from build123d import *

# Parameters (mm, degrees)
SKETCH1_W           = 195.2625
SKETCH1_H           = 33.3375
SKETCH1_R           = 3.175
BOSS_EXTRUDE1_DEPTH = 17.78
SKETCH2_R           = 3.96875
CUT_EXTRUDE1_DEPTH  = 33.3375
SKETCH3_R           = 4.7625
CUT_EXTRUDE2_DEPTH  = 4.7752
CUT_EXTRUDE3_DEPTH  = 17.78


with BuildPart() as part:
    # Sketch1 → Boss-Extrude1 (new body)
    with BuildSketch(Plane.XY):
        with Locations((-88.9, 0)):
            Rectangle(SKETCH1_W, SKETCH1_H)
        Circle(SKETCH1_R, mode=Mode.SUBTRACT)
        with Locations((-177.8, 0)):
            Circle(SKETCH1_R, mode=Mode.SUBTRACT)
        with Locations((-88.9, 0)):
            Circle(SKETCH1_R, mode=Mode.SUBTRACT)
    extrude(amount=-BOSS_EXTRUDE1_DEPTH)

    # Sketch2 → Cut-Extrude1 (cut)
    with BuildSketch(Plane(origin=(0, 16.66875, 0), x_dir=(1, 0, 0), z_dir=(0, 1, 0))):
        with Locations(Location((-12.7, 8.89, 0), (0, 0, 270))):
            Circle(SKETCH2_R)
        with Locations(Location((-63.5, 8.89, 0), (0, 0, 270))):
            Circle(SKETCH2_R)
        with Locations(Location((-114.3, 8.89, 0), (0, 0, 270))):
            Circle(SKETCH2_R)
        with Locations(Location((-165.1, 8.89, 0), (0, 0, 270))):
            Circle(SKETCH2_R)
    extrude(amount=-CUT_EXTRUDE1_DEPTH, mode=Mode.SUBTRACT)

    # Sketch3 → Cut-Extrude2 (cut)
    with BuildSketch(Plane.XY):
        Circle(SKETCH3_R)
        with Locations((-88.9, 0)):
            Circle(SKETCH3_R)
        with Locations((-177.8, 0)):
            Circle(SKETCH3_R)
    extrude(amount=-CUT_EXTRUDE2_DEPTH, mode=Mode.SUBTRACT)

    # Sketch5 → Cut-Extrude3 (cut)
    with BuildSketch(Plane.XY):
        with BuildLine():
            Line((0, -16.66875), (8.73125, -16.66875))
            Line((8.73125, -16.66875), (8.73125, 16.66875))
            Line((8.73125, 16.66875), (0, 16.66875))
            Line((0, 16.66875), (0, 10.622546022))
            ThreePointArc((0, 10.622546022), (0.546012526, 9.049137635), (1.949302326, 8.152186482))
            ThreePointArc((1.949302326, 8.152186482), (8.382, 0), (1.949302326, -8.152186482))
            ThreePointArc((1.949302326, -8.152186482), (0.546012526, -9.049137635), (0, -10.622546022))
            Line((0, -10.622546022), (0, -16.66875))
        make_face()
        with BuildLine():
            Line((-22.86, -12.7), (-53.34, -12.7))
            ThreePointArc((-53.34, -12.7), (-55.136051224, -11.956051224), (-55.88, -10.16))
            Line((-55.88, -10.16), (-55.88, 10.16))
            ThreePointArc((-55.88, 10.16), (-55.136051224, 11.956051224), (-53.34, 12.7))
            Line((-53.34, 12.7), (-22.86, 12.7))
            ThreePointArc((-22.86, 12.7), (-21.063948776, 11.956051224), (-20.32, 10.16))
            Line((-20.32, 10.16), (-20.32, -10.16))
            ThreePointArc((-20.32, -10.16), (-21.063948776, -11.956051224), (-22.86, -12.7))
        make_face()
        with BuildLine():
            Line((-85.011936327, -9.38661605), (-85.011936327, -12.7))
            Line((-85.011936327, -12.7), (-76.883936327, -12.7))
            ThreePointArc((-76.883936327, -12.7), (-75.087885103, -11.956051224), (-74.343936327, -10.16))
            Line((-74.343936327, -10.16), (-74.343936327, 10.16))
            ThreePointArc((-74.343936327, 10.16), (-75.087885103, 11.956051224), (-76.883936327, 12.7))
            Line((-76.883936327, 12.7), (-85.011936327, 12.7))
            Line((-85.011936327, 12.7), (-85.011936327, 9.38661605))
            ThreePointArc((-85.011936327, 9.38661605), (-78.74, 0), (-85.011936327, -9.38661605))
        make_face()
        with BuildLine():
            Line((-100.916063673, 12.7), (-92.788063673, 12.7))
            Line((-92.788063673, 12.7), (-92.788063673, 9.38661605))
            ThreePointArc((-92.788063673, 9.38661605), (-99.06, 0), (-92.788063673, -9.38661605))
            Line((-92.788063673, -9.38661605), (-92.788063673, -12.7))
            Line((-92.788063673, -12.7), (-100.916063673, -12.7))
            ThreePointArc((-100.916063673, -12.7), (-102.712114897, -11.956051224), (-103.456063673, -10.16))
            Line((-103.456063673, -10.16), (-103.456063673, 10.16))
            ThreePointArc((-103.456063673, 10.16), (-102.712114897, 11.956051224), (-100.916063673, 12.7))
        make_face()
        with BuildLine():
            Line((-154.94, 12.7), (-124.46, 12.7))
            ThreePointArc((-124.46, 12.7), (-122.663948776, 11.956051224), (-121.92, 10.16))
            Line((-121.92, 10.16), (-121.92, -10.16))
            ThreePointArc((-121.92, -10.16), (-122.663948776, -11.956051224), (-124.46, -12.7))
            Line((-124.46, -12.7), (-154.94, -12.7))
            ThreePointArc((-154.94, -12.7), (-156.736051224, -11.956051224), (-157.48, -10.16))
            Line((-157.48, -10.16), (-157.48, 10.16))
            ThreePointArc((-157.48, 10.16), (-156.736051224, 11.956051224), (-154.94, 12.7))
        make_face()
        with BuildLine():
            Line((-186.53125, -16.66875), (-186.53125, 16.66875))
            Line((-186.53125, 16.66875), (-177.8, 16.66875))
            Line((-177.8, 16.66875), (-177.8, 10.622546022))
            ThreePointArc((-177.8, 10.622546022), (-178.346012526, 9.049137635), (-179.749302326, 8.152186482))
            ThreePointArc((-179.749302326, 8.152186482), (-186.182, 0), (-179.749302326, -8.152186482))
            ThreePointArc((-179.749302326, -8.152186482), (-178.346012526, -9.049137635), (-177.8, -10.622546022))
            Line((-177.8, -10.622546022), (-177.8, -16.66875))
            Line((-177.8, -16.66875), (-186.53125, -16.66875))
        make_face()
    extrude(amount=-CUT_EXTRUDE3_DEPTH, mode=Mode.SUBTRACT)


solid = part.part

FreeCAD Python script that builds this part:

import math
import FreeCAD as App
import Part
import Sketcher

V = App.Vector
Q = App.Units.Quantity


def add_polygon(sketch, points):
    """Adds a closed chain of lines whose ends are joined by coincident constraints."""
    first, n = sketch.GeometryCount, len(points)
    for a, b in zip(points, points[1:] + points[:1]):
        sketch.addGeometry(Part.LineSegment(App.Vector(*a, 0), App.Vector(*b, 0)), False)
    for i in range(n):
        sketch.addConstraint(Sketcher.Constraint("Coincident", first + i, 2, first + (i + 1) % n, 1))

doc = App.newDocument("Part")
body = doc.addObject("PartDesign::Body", "Body")

sketch1 = doc.addObject("Sketcher::SketchObject", "Sketch")
body.addObject(sketch1)
sketch1.AttachmentSupport = (doc.XY_Plane, [""])
sketch1.MapMode = "FlatFace"
add_polygon(sketch1, [(-186.5, 16.7), (-186.5, -16.7), (8.7, -16.7), (8.7, 16.7)])
sketch1.addGeometry(Part.Circle(V(-177.8, 0, 0), V(0, 0, 1), 3.2), False)
sketch1.addGeometry(Part.Circle(V(-88.9, 0, 0), V(0, 0, 1), 3.2), False)
sketch1.addGeometry(Part.Circle(V(0, 0, 0), V(0, 0, 1), 3.2), False)
sketch1.addConstraint(Sketcher.Constraint("Vertical", 0))
sketch1.addConstraint(Sketcher.Constraint("Horizontal", 1))
sketch1.addConstraint(Sketcher.Constraint("Vertical", 2))
sketch1.addConstraint(Sketcher.Constraint("Horizontal", 3))
sketch1.addConstraint(Sketcher.Constraint("Coincident", 6, 3, -1, 1))
sketch1.addConstraint(Sketcher.Constraint("Equal", 4, 5))
sketch1.addConstraint(Sketcher.Constraint("Equal", 5, 6))
sketch1.addConstraint(Sketcher.Constraint("PointOnObject", 4, 3, -1))
sketch1.addConstraint(Sketcher.Constraint("PointOnObject", 5, 3, -1))
sketch1.addConstraint(Sketcher.Constraint("Diameter", 4, Q("0.25 in")))
sketch1.addConstraint(Sketcher.Constraint("DistanceX", 4, 3, -1, 1, Q("7 in")))
sketch1.addConstraint(Sketcher.Constraint("DistanceX", 5, 3, -1, 1, Q("3.5 in")))
sketch1.addConstraint(Sketcher.Constraint("DistanceX", 1, 1, 1, 2, Q("7.6875 in")))
sketch1.addConstraint(Sketcher.Constraint("DistanceY", 0, 2, 0, 1, Q("1.3125 in")))
sketch1.addConstraint(Sketcher.Constraint("DistanceX", 0, 2, -1, 1, Q("7.34375 in")))
sketch1.addConstraint(Sketcher.Constraint("DistanceY", 0, 2, -1, 1, Q("0.65625 in")))
pad1 = doc.addObject("PartDesign::Pad", "Pad")
body.addObject(pad1)
pad1.Profile = sketch1
pad1.Length = Q("0.7 in")
pad1.Reversed = True

sketch2 = doc.addObject("Sketcher::SketchObject", "Sketch001")
body.addObject(sketch2)
sketch2.AttachmentSupport = (doc.XZ_Plane, [""])
sketch2.MapMode = "FlatFace"
sketch2.AttachmentOffset = App.Placement(V(0, 0, -0.65625 * 25.4), App.Rotation())
sketch2.addGeometry(Part.Circle(V(-12.7, -8.9, 0), V(0, 0, 1), 4), False)
sketch2.addGeometry(Part.Circle(V(-63.5, -8.9, 0), V(0, 0, 1), 4), False)
sketch2.addGeometry(Part.Circle(V(-114.3, -8.9, 0), V(0, 0, 1), 4), False)
sketch2.addGeometry(Part.Circle(V(-165.1, -8.9, 0), V(0, 0, 1), 4), False)
sketch2.addConstraint(Sketcher.Constraint("Equal", 0, 1))
sketch2.addConstraint(Sketcher.Constraint("Equal", 1, 2))
sketch2.addConstraint(Sketcher.Constraint("Equal", 2, 3))
sketch2.addConstraint(Sketcher.Constraint("Horizontal", 0, 3, 1, 3))
sketch2.addConstraint(Sketcher.Constraint("Horizontal", 1, 3, 2, 3))
sketch2.addConstraint(Sketcher.Constraint("Horizontal", 2, 3, 3, 3))
sketch2.addConstraint(Sketcher.Constraint("Diameter", 0, Q("0.3125 in")))
sketch2.addConstraint(Sketcher.Constraint("DistanceX", 1, 3, 0, 3, Q("2 in")))
sketch2.addConstraint(Sketcher.Constraint("DistanceX", 2, 3, 1, 3, Q("2 in")))
sketch2.addConstraint(Sketcher.Constraint("DistanceX", 3, 3, 2, 3, Q("2 in")))
sketch2.addConstraint(Sketcher.Constraint("DistanceX", 0, 3, -1, 1, Q("0.5 in")))
sketch2.addConstraint(Sketcher.Constraint("DistanceY", 0, 3, -1, 1, Q("0.35 in")))
pocket1 = doc.addObject("PartDesign::Pocket", "Pocket")
body.addObject(pocket1)
pocket1.Profile = sketch2
pocket1.Length = Q("1.3125 in")
pocket1.Reversed = True

sketch3 = doc.addObject("Sketcher::SketchObject", "Sketch002")
body.addObject(sketch3)
sketch3.AttachmentSupport = (doc.XY_Plane, [""])
sketch3.MapMode = "FlatFace"
sketch3.addGeometry(Part.Circle(V(0, 0, 0), V(0, 0, 1), 4.8), False)
sketch3.addGeometry(Part.Circle(V(-88.9, 0, 0), V(0, 0, 1), 4.8), False)
sketch3.addGeometry(Part.Circle(V(-177.8, 0, 0), V(0, 0, 1), 4.8), False)
sketch3.addConstraint(Sketcher.Constraint("Coincident", 0, 3, -1, 1))
sketch3.addConstraint(Sketcher.Constraint("Equal", 0, 1))
sketch3.addConstraint(Sketcher.Constraint("Equal", 1, 2))
sketch3.addConstraint(Sketcher.Constraint("PointOnObject", 1, 3, -1))
sketch3.addConstraint(Sketcher.Constraint("PointOnObject", 2, 3, -1))
sketch3.addConstraint(Sketcher.Constraint("Diameter", 0, Q("0.375 in")))
sketch3.addConstraint(Sketcher.Constraint("DistanceX", 2, 3, -1, 1, Q("7 in")))
sketch3.addConstraint(Sketcher.Constraint("DistanceX", 1, 3, -1, 1, Q("3.5 in")))
pocket2 = doc.addObject("PartDesign::Pocket", "Pocket001")
body.addObject(pocket2)
pocket2.Profile = sketch3
pocket2.Length = Q("0.188 in")

sketch4 = doc.addObject("Sketcher::SketchObject", "Sketch003")
body.addObject(sketch4)
sketch4.AttachmentSupport = (doc.XY_Plane, [""])
sketch4.MapMode = "FlatFace"
sketch4.addGeometry(Part.LineSegment(V(0, -16.7, 0), V(8.7, -16.7, 0)), False)
sketch4.addGeometry(Part.LineSegment(V(8.7, -16.7, 0), V(8.7, 16.7, 0)), False)
sketch4.addGeometry(Part.LineSegment(V(8.7, 16.7, 0), V(0, 16.7, 0)), False)
sketch4.addGeometry(Part.LineSegment(V(0, 16.7, 0), V(0, 10.6, 0)), False)
sketch4.addGeometry(Part.ArcOfCircle(Part.Circle(V(2.5, 10.6, 0), V(0, 0, 1), 2.5), math.radians(-180), math.radians(-103)), False)
sketch4.addGeometry(Part.ArcOfCircle(Part.Circle(V(0, 0, 0), V(0, 0, 1), 8.4), math.radians(-77), math.radians(77)), False)
sketch4.addGeometry(Part.ArcOfCircle(Part.Circle(V(2.5, -10.6, 0), V(0, 0, 1), 2.5), math.radians(103), math.radians(180)), False)
sketch4.addGeometry(Part.LineSegment(V(0, -10.6, 0), V(0, -16.7, 0)), False)
sketch4.addGeometry(Part.LineSegment(V(-53.3, -12.7, 0), V(-22.9, -12.7, 0)), False)
sketch4.addGeometry(Part.ArcOfCircle(Part.Circle(V(-22.9, -10.2, 0), V(0, 0, 1), 2.5), math.radians(-90), math.radians(0)), False)
sketch4.addGeometry(Part.LineSegment(V(-20.3, -10.2, 0), V(-20.3, 10.2, 0)), False)
sketch4.addGeometry(Part.ArcOfCircle(Part.Circle(V(-22.9, 10.2, 0), V(0, 0, 1), 2.5), math.radians(0), math.radians(90)), False)
sketch4.addGeometry(Part.LineSegment(V(-22.9, 12.7, 0), V(-53.3, 12.7, 0)), False)
sketch4.addGeometry(Part.ArcOfCircle(Part.Circle(V(-53.3, 10.2, 0), V(0, 0, 1), 2.5), math.radians(90), math.radians(180)), False)
sketch4.addGeometry(Part.LineSegment(V(-55.9, 10.2, 0), V(-55.9, -10.2, 0)), False)
sketch4.addGeometry(Part.ArcOfCircle(Part.Circle(V(-53.3, -10.2, 0), V(0, 0, 1), 2.5), math.radians(-180), math.radians(-90)), False)
sketch4.addGeometry(Part.LineSegment(V(-85, -9.4, 0), V(-85, -12.7, 0)), False)
sketch4.addGeometry(Part.LineSegment(V(-85, -12.7, 0), V(-76.9, -12.7, 0)), False)
sketch4.addGeometry(Part.ArcOfCircle(Part.Circle(V(-76.9, -10.2, 0), V(0, 0, 1), 2.5), math.radians(-90), math.radians(0)), False)
sketch4.addGeometry(Part.LineSegment(V(-74.3, -10.2, 0), V(-74.3, 10.2, 0)), False)
sketch4.addGeometry(Part.ArcOfCircle(Part.Circle(V(-76.9, 10.2, 0), V(0, 0, 1), 2.5), math.radians(0), math.radians(90)), False)
sketch4.addGeometry(Part.LineSegment(V(-76.9, 12.7, 0), V(-85, 12.7, 0)), False)
sketch4.addGeometry(Part.LineSegment(V(-85, 12.7, 0), V(-85, 9.4, 0)), False)
sketch4.addGeometry(Part.ArcOfCircle(Part.Circle(V(-88.9, 0, 0), V(0, 0, 1), 10.2), math.radians(-67), math.radians(67)), False)
sketch4.addGeometry(Part.LineSegment(V(-92.8, 12.7, 0), V(-100.9, 12.7, 0)), False)
sketch4.addGeometry(Part.ArcOfCircle(Part.Circle(V(-100.9, 10.2, 0), V(0, 0, 1), 2.5), math.radians(90), math.radians(180)), False)
sketch4.addGeometry(Part.LineSegment(V(-103.5, 10.2, 0), V(-103.5, -10.2, 0)), False)
sketch4.addGeometry(Part.ArcOfCircle(Part.Circle(V(-100.9, -10.2, 0), V(0, 0, 1), 2.5), math.radians(-180), math.radians(-90)), False)
sketch4.addGeometry(Part.LineSegment(V(-100.9, -12.7, 0), V(-92.8, -12.7, 0)), False)
sketch4.addGeometry(Part.LineSegment(V(-92.8, -12.7, 0), V(-92.8, -9.4, 0)), False)
sketch4.addGeometry(Part.ArcOfCircle(Part.Circle(V(-88.9, 0, 0), V(0, 0, 1), 10.2), math.radians(113), math.radians(247)), False)
sketch4.addGeometry(Part.LineSegment(V(-92.8, 9.4, 0), V(-92.8, 12.7, 0)), False)
sketch4.addGeometry(Part.LineSegment(V(-124.5, 12.7, 0), V(-154.9, 12.7, 0)), False)
sketch4.addGeometry(Part.ArcOfCircle(Part.Circle(V(-154.9, 10.2, 0), V(0, 0, 1), 2.5), math.radians(90), math.radians(180)), False)
sketch4.addGeometry(Part.LineSegment(V(-157.5, 10.2, 0), V(-157.5, -10.2, 0)), False)
sketch4.addGeometry(Part.ArcOfCircle(Part.Circle(V(-154.9, -10.2, 0), V(0, 0, 1), 2.5), math.radians(-180), math.radians(-90)), False)
sketch4.addGeometry(Part.LineSegment(V(-154.9, -12.7, 0), V(-124.5, -12.7, 0)), False)
sketch4.addGeometry(Part.ArcOfCircle(Part.Circle(V(-124.5, -10.2, 0), V(0, 0, 1), 2.5), math.radians(-90), math.radians(0)), False)
sketch4.addGeometry(Part.LineSegment(V(-121.9, -10.2, 0), V(-121.9, 10.2, 0)), False)
sketch4.addGeometry(Part.ArcOfCircle(Part.Circle(V(-124.5, 10.2, 0), V(0, 0, 1), 2.5), math.radians(0), math.radians(90)), False)
sketch4.addGeometry(Part.LineSegment(V(-186.5, 16.7, 0), V(-186.5, -16.7, 0)), False)
sketch4.addGeometry(Part.LineSegment(V(-186.5, -16.7, 0), V(-177.8, -16.7, 0)), False)
sketch4.addGeometry(Part.LineSegment(V(-177.8, -16.7, 0), V(-177.8, -10.6, 0)), False)
sketch4.addGeometry(Part.ArcOfCircle(Part.Circle(V(-180.3, -10.6, 0), V(0, 0, 1), 2.5), math.radians(0), math.radians(77)), False)
sketch4.addGeometry(Part.ArcOfCircle(Part.Circle(V(-177.8, 0, 0), V(0, 0, 1), 8.4), math.radians(103), math.radians(257)), False)
sketch4.addGeometry(Part.ArcOfCircle(Part.Circle(V(-180.3, 10.6, 0), V(0, 0, 1), 2.5), math.radians(-77), math.radians(0)), False)
sketch4.addGeometry(Part.LineSegment(V(-177.8, 10.6, 0), V(-177.8, 16.7, 0)), False)
sketch4.addGeometry(Part.LineSegment(V(-177.8, 16.7, 0), V(-186.5, 16.7, 0)), False)
sketch4.addConstraint(Sketcher.Constraint("Coincident", 0, 2, 1, 1))
sketch4.addConstraint(Sketcher.Constraint("Coincident", 1, 2, 2, 1))
sketch4.addConstraint(Sketcher.Constraint("Coincident", 2, 2, 3, 1))
sketch4.addConstraint(Sketcher.Constraint("Tangent", 3, 2, 4, 1))
sketch4.addConstraint(Sketcher.Constraint("Tangent", 4, 2, 5, 2))
sketch4.addConstraint(Sketcher.Constraint("Tangent", 5, 1, 6, 1))
sketch4.addConstraint(Sketcher.Constraint("Tangent", 6, 2, 7, 1))
sketch4.addConstraint(Sketcher.Constraint("Coincident", 7, 2, 0, 1))
sketch4.addConstraint(Sketcher.Constraint("Tangent", 8, 2, 9, 1))
sketch4.addConstraint(Sketcher.Constraint("Tangent", 9, 2, 10, 1))
sketch4.addConstraint(Sketcher.Constraint("Tangent", 10, 2, 11, 1))
sketch4.addConstraint(Sketcher.Constraint("Tangent", 11, 2, 12, 1))
sketch4.addConstraint(Sketcher.Constraint("Tangent", 12, 2, 13, 1))
sketch4.addConstraint(Sketcher.Constraint("Tangent", 13, 2, 14, 1))
sketch4.addConstraint(Sketcher.Constraint("Tangent", 14, 2, 15, 1))
sketch4.addConstraint(Sketcher.Constraint("Tangent", 15, 2, 8, 1))
sketch4.addConstraint(Sketcher.Constraint("Coincident", 16, 2, 17, 1))
sketch4.addConstraint(Sketcher.Constraint("Tangent", 17, 2, 18, 1))
sketch4.addConstraint(Sketcher.Constraint("Tangent", 18, 2, 19, 1))
sketch4.addConstraint(Sketcher.Constraint("Tangent", 19, 2, 20, 1))
sketch4.addConstraint(Sketcher.Constraint("Tangent", 20, 2, 21, 1))
sketch4.addConstraint(Sketcher.Constraint("Coincident", 21, 2, 22, 1))
sketch4.addConstraint(Sketcher.Constraint("Coincident", 22, 2, 23, 2))
sketch4.addConstraint(Sketcher.Constraint("Coincident", 23, 1, 16, 1))
sketch4.addConstraint(Sketcher.Constraint("Tangent", 24, 2, 25, 1))
sketch4.addConstraint(Sketcher.Constraint("Tangent", 25, 2, 26, 1))
sketch4.addConstraint(Sketcher.Constraint("Tangent", 26, 2, 27, 1))
sketch4.addConstraint(Sketcher.Constraint("Tangent", 27, 2, 28, 1))
sketch4.addConstraint(Sketcher.Constraint("Coincident", 28, 2, 29, 1))
sketch4.addConstraint(Sketcher.Constraint("Coincident", 29, 2, 30, 2))
sketch4.addConstraint(Sketcher.Constraint("Coincident", 30, 1, 31, 1))
sketch4.addConstraint(Sketcher.Constraint("Coincident", 31, 2, 24, 1))
sketch4.addConstraint(Sketcher.Constraint("Tangent", 32, 2, 33, 1))
sketch4.addConstraint(Sketcher.Constraint("Tangent", 33, 2, 34, 1))
sketch4.addConstraint(Sketcher.Constraint("Tangent", 34, 2, 35, 1))
sketch4.addConstraint(Sketcher.Constraint("Tangent", 35, 2, 36, 1))
sketch4.addConstraint(Sketcher.Constraint("Tangent", 36, 2, 37, 1))
sketch4.addConstraint(Sketcher.Constraint("Tangent", 37, 2, 38, 1))
sketch4.addConstraint(Sketcher.Constraint("Tangent", 38, 2, 39, 1))
sketch4.addConstraint(Sketcher.Constraint("Tangent", 39, 2, 32, 1))
sketch4.addConstraint(Sketcher.Constraint("Coincident", 40, 2, 41, 1))
sketch4.addConstraint(Sketcher.Constraint("Coincident", 41, 2, 42, 1))
sketch4.addConstraint(Sketcher.Constraint("Tangent", 42, 2, 43, 1))
sketch4.addConstraint(Sketcher.Constraint("Tangent", 43, 2, 44, 2))
sketch4.addConstraint(Sketcher.Constraint("Tangent", 44, 1, 45, 1))
sketch4.addConstraint(Sketcher.Constraint("Tangent", 45, 2, 46, 1))
sketch4.addConstraint(Sketcher.Constraint("Coincident", 46, 2, 47, 1))
sketch4.addConstraint(Sketcher.Constraint("Coincident", 47, 2, 40, 1))
sketch4.addConstraint(Sketcher.Constraint("Horizontal", 0))
sketch4.addConstraint(Sketcher.Constraint("Vertical", 1))
sketch4.addConstraint(Sketcher.Constraint("Horizontal", 2))
sketch4.addConstraint(Sketcher.Constraint("Vertical", 3))
sketch4.addConstraint(Sketcher.Constraint("Vertical", 7))
sketch4.addConstraint(Sketcher.Constraint("Horizontal", 8))
sketch4.addConstraint(Sketcher.Constraint("Vertical", 10))
sketch4.addConstraint(Sketcher.Constraint("Horizontal", 12))
sketch4.addConstraint(Sketcher.Constraint("Vertical", 14))
sketch4.addConstraint(Sketcher.Constraint("Vertical", 16))
sketch4.addConstraint(Sketcher.Constraint("Horizontal", 17))
sketch4.addConstraint(Sketcher.Constraint("Vertical", 19))
sketch4.addConstraint(Sketcher.Constraint("Horizontal", 21))
sketch4.addConstraint(Sketcher.Constraint("Vertical", 22))
sketch4.addConstraint(Sketcher.Constraint("Horizontal", 24))
sketch4.addConstraint(Sketcher.Constraint("Vertical", 26))
sketch4.addConstraint(Sketcher.Constraint("Horizontal", 28))
sketch4.addConstraint(Sketcher.Constraint("Vertical", 29))
sketch4.addConstraint(Sketcher.Constraint("Vertical", 31))
sketch4.addConstraint(Sketcher.Constraint("Horizontal", 32))
sketch4.addConstraint(Sketcher.Constraint("Vertical", 34))
sketch4.addConstraint(Sketcher.Constraint("Horizontal", 36))
sketch4.addConstraint(Sketcher.Constraint("Vertical", 38))
sketch4.addConstraint(Sketcher.Constraint("Vertical", 40))
sketch4.addConstraint(Sketcher.Constraint("Horizontal", 41))
sketch4.addConstraint(Sketcher.Constraint("Vertical", 42))
sketch4.addConstraint(Sketcher.Constraint("Vertical", 46))
sketch4.addConstraint(Sketcher.Constraint("Horizontal", 47))
sketch4.addConstraint(Sketcher.Constraint("Coincident", 5, 3, -1, 1))
sketch4.addConstraint(Sketcher.Constraint("Coincident", 30, 3, 23, 3))
sketch4.addConstraint(Sketcher.Constraint("Equal", 4, 6))
sketch4.addConstraint(Sketcher.Constraint("Equal", 6, 9))
sketch4.addConstraint(Sketcher.Constraint("Equal", 9, 11))
sketch4.addConstraint(Sketcher.Constraint("Equal", 11, 13))
sketch4.addConstraint(Sketcher.Constraint("Equal", 13, 15))
sketch4.addConstraint(Sketcher.Constraint("Equal", 15, 18))
sketch4.addConstraint(Sketcher.Constraint("Equal", 18, 20))
sketch4.addConstraint(Sketcher.Constraint("Equal", 20, 25))
sketch4.addConstraint(Sketcher.Constraint("Equal", 25, 27))
sketch4.addConstraint(Sketcher.Constraint("Equal", 23, 30))
sketch4.addConstraint(Sketcher.Constraint("Equal", 27, 33))
sketch4.addConstraint(Sketcher.Constraint("Equal", 33, 35))
sketch4.addConstraint(Sketcher.Constraint("Equal", 35, 37))
sketch4.addConstraint(Sketcher.Constraint("Equal", 37, 39))
sketch4.addConstraint(Sketcher.Constraint("Equal", 39, 43))
sketch4.addConstraint(Sketcher.Constraint("Equal", 5, 44))
sketch4.addConstraint(Sketcher.Constraint("Equal", 43, 45))
sketch4.addConstraint(Sketcher.Constraint("Symmetric", 3, 2, 6, 2, -1, 1))
sketch4.addConstraint(Sketcher.Constraint("Symmetric", 43, 3, 45, 3, -1))
sketch4.addConstraint(Sketcher.Constraint("Symmetric", 16, 2, 21, 2, -1))
sketch4.addConstraint(Sketcher.Constraint("Symmetric", 29, 2, 30, 1, -1))
sketch4.addConstraint(Sketcher.Constraint("Horizontal", 15, 3, 18, 3))
sketch4.addConstraint(Sketcher.Constraint("Horizontal", 13, 3, 20, 3))
sketch4.addConstraint(Sketcher.Constraint("Horizontal", 20, 3, 25, 3))
sketch4.addConstraint(Sketcher.Constraint("Horizontal", 18, 3, 27, 3))
sketch4.addConstraint(Sketcher.Constraint("Horizontal", 25, 3, 33, 3))
sketch4.addConstraint(Sketcher.Constraint("Horizontal", 27, 3, 35, 3))
sketch4.addConstraint(Sketcher.Constraint("Horizontal", 6, 3, 43, 3))
sketch4.addConstraint(Sketcher.Constraint("Horizontal", 23, 1, 29, 2))
sketch4.addConstraint(Sketcher.Constraint("Horizontal", 7, 2, 40, 2))
sketch4.addConstraint(Sketcher.Constraint("Horizontal", 2, 2, 46, 2))
sketch4.addConstraint(Sketcher.Constraint("Equal", 21, 24))
sketch4.addConstraint(Sketcher.Constraint("Equal", 12, 32))
sketch4.addConstraint(Sketcher.Constraint("Equal", 2, 41))
sketch4.addConstraint(Sketcher.Constraint("Equal", 3, 7))
sketch4.addConstraint(Sketcher.Constraint("Radius", 4, Q("0.1 in")))
sketch4.addConstraint(Sketcher.Constraint("Radius", 23, Q("0.4 in")))
sketch4.addConstraint(Sketcher.Constraint("Radius", 5, Q("0.33 in")))
sketch4.addConstraint(Sketcher.Constraint("DistanceX", 8, 1, 8, 2, Q("1.2 in")))
sketch4.addConstraint(Sketcher.Constraint("DistanceY", 10, 1, 10, 2, Q("0.8 in")))
sketch4.addConstraint(Sketcher.Constraint("DistanceX", 44, 3, -1, 1, Q("7 in")))
sketch4.addConstraint(Sketcher.Constraint("DistanceX", 17, 1, 17, 2, Q("0.32 in")))
sketch4.addConstraint(Sketcher.Constraint("DistanceX", 9, 3, -1, 1, Q("0.9 in")))
sketch4.addConstraint(Sketcher.Constraint("DistanceX", 23, 3, -1, 1, Q("3.5 in")))
sketch4.addConstraint(Sketcher.Constraint("DistanceX", 33, 3, -1, 1, Q("6.1 in")))
sketch4.addConstraint(Sketcher.Constraint("DistanceX", 0, 1, 0, 2, Q("0.34375 in")))
sketch4.addConstraint(Sketcher.Constraint("DistanceY", 1, 1, 1, 2, Q("1.3125 in")))
sketch4.addConstraint(Sketcher.Constraint("DistanceY", 16, 2, 16, 1, Q("3.313384 mm")))
pocket3 = doc.addObject("PartDesign::Pocket", "Pocket002")
body.addObject(pocket3)
pocket3.Profile = sketch4
pocket3.Length = Q("0.7 in")

doc.recompute()
